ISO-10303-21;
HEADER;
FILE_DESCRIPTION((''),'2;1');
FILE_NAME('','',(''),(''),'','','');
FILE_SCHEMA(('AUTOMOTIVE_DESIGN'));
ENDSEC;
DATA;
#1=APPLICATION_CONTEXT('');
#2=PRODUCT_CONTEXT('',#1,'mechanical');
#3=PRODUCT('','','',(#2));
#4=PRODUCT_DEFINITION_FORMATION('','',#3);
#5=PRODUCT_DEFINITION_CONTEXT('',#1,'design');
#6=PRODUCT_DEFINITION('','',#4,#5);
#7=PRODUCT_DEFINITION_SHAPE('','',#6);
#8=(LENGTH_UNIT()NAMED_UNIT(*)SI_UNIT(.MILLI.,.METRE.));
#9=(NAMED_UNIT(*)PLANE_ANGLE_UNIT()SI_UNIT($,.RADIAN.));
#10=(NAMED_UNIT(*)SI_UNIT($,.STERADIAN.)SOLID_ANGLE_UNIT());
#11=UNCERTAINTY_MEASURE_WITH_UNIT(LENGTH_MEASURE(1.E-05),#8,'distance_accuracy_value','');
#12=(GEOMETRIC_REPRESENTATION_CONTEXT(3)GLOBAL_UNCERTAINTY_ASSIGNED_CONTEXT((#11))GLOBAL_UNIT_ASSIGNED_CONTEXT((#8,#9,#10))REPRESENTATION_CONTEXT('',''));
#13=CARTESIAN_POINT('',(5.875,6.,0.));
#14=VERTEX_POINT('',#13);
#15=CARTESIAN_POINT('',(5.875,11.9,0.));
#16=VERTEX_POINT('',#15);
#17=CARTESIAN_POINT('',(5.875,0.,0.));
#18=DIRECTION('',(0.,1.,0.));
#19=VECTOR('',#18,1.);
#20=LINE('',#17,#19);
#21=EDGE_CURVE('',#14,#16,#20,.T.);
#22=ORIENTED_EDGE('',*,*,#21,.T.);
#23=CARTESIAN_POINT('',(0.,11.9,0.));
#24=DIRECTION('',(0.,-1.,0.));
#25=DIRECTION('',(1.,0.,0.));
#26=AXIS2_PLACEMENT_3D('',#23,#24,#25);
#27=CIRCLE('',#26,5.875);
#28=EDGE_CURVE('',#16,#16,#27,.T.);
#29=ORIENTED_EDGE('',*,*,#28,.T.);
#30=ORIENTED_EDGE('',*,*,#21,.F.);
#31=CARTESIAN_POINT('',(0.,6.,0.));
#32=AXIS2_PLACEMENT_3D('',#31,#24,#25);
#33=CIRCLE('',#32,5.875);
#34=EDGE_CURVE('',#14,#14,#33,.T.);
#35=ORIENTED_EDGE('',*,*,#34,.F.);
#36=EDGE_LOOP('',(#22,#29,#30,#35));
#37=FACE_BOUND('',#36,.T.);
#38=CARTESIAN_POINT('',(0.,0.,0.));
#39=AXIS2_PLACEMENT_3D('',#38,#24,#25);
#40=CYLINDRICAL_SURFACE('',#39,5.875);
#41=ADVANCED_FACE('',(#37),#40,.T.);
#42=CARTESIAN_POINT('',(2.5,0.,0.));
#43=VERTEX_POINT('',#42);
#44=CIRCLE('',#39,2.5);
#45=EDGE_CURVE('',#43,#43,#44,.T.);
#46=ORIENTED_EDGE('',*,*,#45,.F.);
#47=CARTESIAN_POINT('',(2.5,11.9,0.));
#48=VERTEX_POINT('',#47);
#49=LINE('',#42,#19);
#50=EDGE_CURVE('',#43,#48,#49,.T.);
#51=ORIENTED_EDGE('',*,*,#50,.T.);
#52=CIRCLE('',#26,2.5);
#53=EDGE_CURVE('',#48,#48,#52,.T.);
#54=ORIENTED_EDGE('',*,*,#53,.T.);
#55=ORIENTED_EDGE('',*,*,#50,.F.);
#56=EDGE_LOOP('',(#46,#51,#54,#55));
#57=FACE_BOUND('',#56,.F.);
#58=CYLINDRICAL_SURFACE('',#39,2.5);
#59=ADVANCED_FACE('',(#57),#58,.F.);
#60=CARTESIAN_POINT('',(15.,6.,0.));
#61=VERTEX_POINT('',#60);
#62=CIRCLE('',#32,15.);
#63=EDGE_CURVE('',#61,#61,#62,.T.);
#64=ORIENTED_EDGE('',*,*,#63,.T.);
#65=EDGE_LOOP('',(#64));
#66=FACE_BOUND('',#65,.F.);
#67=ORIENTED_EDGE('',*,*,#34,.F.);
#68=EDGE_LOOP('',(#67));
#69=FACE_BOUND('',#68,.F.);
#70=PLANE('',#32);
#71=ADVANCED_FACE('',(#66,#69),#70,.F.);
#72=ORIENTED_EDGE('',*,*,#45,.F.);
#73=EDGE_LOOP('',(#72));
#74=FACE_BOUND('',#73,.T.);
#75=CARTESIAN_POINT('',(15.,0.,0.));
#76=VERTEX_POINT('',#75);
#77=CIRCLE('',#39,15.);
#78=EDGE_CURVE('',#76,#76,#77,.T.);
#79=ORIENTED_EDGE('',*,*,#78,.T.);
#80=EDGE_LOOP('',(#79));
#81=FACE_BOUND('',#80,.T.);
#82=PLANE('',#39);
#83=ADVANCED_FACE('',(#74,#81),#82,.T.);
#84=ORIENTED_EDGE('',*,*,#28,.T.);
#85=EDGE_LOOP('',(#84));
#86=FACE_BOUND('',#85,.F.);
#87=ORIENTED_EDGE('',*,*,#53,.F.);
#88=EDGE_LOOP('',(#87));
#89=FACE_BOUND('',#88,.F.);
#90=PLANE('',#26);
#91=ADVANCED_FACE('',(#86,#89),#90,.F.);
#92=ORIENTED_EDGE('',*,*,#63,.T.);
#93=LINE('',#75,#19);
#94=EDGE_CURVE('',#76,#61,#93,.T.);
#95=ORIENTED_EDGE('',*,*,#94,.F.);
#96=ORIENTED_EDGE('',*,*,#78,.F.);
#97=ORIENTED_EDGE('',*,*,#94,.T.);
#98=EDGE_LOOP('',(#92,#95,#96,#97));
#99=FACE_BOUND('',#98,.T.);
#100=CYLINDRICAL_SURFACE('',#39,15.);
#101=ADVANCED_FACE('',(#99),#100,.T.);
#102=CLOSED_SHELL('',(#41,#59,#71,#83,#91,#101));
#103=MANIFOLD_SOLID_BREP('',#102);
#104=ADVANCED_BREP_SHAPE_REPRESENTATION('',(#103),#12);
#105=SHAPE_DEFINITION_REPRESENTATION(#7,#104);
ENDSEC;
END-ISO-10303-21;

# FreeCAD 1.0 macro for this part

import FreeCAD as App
import Part
import Sketcher

V = App.Vector
Q = App.Units.Quantity

doc = App.newDocument("Part")
body = doc.addObject("PartDesign::Body", "Body")

# Sketch on XZ plane
sketch1 = body.newObject("Sketcher::SketchObject", "Sketch")
sketch1.AttachmentSupport = (doc.getObject("XZ_Plane"), [""])
sketch1.MapMode = "FlatFace"
sketch1.addGeometry([
    Part.Circle(V(0, 0, 0), V(0, 0, 1), 5.9),
    Part.Circle(V(0, 0, 0), V(0, 0, 1), 2.5),
], False)
sketch1.addConstraint([
    Sketcher.Constraint("Coincident", 0, 3, -1, 1),
    Sketcher.Constraint("Coincident", 1, 3, -1, 1),
    Sketcher.Constraint("Diameter", 1, Q("5 mm")),
    Sketcher.Constraint("Diameter", 0, Q("11.75 mm")),
])
pad1 = body.newObject("PartDesign::Pad", "Pad")
pad1.Profile = sketch1
pad1.Length = 11.9
pad1.Reversed = True

# Sketch on XZ plane
sketch2 = body.newObject("Sketcher::SketchObject", "Sketch001")
sketch2.AttachmentSupport = (doc.getObject("XZ_Plane"), [""])
sketch2.MapMode = "FlatFace"
sketch2.addGeometry([
    Part.Circle(V(0, 0, 0), V(0, 0, 1), 15),
    Part.Circle(V(0, 0, 0), V(0, 0, 1), 6),
], False)
sketch2.addConstraint([
    Sketcher.Constraint("Coincident", 0, 3, -1, 1),
    Sketcher.Constraint("Coincident", 1, 3, -1, 1),
    Sketcher.Constraint("Diameter", 0, Q("30 mm")),
    Sketcher.Constraint("Diameter", 1, Q("11.75 mm")),
])
pad2 = body.newObject("PartDesign::Pad", "Pad001")
pad2.Profile = sketch2
pad2.Length = 6
pad2.Reversed = True

doc.recompute()
